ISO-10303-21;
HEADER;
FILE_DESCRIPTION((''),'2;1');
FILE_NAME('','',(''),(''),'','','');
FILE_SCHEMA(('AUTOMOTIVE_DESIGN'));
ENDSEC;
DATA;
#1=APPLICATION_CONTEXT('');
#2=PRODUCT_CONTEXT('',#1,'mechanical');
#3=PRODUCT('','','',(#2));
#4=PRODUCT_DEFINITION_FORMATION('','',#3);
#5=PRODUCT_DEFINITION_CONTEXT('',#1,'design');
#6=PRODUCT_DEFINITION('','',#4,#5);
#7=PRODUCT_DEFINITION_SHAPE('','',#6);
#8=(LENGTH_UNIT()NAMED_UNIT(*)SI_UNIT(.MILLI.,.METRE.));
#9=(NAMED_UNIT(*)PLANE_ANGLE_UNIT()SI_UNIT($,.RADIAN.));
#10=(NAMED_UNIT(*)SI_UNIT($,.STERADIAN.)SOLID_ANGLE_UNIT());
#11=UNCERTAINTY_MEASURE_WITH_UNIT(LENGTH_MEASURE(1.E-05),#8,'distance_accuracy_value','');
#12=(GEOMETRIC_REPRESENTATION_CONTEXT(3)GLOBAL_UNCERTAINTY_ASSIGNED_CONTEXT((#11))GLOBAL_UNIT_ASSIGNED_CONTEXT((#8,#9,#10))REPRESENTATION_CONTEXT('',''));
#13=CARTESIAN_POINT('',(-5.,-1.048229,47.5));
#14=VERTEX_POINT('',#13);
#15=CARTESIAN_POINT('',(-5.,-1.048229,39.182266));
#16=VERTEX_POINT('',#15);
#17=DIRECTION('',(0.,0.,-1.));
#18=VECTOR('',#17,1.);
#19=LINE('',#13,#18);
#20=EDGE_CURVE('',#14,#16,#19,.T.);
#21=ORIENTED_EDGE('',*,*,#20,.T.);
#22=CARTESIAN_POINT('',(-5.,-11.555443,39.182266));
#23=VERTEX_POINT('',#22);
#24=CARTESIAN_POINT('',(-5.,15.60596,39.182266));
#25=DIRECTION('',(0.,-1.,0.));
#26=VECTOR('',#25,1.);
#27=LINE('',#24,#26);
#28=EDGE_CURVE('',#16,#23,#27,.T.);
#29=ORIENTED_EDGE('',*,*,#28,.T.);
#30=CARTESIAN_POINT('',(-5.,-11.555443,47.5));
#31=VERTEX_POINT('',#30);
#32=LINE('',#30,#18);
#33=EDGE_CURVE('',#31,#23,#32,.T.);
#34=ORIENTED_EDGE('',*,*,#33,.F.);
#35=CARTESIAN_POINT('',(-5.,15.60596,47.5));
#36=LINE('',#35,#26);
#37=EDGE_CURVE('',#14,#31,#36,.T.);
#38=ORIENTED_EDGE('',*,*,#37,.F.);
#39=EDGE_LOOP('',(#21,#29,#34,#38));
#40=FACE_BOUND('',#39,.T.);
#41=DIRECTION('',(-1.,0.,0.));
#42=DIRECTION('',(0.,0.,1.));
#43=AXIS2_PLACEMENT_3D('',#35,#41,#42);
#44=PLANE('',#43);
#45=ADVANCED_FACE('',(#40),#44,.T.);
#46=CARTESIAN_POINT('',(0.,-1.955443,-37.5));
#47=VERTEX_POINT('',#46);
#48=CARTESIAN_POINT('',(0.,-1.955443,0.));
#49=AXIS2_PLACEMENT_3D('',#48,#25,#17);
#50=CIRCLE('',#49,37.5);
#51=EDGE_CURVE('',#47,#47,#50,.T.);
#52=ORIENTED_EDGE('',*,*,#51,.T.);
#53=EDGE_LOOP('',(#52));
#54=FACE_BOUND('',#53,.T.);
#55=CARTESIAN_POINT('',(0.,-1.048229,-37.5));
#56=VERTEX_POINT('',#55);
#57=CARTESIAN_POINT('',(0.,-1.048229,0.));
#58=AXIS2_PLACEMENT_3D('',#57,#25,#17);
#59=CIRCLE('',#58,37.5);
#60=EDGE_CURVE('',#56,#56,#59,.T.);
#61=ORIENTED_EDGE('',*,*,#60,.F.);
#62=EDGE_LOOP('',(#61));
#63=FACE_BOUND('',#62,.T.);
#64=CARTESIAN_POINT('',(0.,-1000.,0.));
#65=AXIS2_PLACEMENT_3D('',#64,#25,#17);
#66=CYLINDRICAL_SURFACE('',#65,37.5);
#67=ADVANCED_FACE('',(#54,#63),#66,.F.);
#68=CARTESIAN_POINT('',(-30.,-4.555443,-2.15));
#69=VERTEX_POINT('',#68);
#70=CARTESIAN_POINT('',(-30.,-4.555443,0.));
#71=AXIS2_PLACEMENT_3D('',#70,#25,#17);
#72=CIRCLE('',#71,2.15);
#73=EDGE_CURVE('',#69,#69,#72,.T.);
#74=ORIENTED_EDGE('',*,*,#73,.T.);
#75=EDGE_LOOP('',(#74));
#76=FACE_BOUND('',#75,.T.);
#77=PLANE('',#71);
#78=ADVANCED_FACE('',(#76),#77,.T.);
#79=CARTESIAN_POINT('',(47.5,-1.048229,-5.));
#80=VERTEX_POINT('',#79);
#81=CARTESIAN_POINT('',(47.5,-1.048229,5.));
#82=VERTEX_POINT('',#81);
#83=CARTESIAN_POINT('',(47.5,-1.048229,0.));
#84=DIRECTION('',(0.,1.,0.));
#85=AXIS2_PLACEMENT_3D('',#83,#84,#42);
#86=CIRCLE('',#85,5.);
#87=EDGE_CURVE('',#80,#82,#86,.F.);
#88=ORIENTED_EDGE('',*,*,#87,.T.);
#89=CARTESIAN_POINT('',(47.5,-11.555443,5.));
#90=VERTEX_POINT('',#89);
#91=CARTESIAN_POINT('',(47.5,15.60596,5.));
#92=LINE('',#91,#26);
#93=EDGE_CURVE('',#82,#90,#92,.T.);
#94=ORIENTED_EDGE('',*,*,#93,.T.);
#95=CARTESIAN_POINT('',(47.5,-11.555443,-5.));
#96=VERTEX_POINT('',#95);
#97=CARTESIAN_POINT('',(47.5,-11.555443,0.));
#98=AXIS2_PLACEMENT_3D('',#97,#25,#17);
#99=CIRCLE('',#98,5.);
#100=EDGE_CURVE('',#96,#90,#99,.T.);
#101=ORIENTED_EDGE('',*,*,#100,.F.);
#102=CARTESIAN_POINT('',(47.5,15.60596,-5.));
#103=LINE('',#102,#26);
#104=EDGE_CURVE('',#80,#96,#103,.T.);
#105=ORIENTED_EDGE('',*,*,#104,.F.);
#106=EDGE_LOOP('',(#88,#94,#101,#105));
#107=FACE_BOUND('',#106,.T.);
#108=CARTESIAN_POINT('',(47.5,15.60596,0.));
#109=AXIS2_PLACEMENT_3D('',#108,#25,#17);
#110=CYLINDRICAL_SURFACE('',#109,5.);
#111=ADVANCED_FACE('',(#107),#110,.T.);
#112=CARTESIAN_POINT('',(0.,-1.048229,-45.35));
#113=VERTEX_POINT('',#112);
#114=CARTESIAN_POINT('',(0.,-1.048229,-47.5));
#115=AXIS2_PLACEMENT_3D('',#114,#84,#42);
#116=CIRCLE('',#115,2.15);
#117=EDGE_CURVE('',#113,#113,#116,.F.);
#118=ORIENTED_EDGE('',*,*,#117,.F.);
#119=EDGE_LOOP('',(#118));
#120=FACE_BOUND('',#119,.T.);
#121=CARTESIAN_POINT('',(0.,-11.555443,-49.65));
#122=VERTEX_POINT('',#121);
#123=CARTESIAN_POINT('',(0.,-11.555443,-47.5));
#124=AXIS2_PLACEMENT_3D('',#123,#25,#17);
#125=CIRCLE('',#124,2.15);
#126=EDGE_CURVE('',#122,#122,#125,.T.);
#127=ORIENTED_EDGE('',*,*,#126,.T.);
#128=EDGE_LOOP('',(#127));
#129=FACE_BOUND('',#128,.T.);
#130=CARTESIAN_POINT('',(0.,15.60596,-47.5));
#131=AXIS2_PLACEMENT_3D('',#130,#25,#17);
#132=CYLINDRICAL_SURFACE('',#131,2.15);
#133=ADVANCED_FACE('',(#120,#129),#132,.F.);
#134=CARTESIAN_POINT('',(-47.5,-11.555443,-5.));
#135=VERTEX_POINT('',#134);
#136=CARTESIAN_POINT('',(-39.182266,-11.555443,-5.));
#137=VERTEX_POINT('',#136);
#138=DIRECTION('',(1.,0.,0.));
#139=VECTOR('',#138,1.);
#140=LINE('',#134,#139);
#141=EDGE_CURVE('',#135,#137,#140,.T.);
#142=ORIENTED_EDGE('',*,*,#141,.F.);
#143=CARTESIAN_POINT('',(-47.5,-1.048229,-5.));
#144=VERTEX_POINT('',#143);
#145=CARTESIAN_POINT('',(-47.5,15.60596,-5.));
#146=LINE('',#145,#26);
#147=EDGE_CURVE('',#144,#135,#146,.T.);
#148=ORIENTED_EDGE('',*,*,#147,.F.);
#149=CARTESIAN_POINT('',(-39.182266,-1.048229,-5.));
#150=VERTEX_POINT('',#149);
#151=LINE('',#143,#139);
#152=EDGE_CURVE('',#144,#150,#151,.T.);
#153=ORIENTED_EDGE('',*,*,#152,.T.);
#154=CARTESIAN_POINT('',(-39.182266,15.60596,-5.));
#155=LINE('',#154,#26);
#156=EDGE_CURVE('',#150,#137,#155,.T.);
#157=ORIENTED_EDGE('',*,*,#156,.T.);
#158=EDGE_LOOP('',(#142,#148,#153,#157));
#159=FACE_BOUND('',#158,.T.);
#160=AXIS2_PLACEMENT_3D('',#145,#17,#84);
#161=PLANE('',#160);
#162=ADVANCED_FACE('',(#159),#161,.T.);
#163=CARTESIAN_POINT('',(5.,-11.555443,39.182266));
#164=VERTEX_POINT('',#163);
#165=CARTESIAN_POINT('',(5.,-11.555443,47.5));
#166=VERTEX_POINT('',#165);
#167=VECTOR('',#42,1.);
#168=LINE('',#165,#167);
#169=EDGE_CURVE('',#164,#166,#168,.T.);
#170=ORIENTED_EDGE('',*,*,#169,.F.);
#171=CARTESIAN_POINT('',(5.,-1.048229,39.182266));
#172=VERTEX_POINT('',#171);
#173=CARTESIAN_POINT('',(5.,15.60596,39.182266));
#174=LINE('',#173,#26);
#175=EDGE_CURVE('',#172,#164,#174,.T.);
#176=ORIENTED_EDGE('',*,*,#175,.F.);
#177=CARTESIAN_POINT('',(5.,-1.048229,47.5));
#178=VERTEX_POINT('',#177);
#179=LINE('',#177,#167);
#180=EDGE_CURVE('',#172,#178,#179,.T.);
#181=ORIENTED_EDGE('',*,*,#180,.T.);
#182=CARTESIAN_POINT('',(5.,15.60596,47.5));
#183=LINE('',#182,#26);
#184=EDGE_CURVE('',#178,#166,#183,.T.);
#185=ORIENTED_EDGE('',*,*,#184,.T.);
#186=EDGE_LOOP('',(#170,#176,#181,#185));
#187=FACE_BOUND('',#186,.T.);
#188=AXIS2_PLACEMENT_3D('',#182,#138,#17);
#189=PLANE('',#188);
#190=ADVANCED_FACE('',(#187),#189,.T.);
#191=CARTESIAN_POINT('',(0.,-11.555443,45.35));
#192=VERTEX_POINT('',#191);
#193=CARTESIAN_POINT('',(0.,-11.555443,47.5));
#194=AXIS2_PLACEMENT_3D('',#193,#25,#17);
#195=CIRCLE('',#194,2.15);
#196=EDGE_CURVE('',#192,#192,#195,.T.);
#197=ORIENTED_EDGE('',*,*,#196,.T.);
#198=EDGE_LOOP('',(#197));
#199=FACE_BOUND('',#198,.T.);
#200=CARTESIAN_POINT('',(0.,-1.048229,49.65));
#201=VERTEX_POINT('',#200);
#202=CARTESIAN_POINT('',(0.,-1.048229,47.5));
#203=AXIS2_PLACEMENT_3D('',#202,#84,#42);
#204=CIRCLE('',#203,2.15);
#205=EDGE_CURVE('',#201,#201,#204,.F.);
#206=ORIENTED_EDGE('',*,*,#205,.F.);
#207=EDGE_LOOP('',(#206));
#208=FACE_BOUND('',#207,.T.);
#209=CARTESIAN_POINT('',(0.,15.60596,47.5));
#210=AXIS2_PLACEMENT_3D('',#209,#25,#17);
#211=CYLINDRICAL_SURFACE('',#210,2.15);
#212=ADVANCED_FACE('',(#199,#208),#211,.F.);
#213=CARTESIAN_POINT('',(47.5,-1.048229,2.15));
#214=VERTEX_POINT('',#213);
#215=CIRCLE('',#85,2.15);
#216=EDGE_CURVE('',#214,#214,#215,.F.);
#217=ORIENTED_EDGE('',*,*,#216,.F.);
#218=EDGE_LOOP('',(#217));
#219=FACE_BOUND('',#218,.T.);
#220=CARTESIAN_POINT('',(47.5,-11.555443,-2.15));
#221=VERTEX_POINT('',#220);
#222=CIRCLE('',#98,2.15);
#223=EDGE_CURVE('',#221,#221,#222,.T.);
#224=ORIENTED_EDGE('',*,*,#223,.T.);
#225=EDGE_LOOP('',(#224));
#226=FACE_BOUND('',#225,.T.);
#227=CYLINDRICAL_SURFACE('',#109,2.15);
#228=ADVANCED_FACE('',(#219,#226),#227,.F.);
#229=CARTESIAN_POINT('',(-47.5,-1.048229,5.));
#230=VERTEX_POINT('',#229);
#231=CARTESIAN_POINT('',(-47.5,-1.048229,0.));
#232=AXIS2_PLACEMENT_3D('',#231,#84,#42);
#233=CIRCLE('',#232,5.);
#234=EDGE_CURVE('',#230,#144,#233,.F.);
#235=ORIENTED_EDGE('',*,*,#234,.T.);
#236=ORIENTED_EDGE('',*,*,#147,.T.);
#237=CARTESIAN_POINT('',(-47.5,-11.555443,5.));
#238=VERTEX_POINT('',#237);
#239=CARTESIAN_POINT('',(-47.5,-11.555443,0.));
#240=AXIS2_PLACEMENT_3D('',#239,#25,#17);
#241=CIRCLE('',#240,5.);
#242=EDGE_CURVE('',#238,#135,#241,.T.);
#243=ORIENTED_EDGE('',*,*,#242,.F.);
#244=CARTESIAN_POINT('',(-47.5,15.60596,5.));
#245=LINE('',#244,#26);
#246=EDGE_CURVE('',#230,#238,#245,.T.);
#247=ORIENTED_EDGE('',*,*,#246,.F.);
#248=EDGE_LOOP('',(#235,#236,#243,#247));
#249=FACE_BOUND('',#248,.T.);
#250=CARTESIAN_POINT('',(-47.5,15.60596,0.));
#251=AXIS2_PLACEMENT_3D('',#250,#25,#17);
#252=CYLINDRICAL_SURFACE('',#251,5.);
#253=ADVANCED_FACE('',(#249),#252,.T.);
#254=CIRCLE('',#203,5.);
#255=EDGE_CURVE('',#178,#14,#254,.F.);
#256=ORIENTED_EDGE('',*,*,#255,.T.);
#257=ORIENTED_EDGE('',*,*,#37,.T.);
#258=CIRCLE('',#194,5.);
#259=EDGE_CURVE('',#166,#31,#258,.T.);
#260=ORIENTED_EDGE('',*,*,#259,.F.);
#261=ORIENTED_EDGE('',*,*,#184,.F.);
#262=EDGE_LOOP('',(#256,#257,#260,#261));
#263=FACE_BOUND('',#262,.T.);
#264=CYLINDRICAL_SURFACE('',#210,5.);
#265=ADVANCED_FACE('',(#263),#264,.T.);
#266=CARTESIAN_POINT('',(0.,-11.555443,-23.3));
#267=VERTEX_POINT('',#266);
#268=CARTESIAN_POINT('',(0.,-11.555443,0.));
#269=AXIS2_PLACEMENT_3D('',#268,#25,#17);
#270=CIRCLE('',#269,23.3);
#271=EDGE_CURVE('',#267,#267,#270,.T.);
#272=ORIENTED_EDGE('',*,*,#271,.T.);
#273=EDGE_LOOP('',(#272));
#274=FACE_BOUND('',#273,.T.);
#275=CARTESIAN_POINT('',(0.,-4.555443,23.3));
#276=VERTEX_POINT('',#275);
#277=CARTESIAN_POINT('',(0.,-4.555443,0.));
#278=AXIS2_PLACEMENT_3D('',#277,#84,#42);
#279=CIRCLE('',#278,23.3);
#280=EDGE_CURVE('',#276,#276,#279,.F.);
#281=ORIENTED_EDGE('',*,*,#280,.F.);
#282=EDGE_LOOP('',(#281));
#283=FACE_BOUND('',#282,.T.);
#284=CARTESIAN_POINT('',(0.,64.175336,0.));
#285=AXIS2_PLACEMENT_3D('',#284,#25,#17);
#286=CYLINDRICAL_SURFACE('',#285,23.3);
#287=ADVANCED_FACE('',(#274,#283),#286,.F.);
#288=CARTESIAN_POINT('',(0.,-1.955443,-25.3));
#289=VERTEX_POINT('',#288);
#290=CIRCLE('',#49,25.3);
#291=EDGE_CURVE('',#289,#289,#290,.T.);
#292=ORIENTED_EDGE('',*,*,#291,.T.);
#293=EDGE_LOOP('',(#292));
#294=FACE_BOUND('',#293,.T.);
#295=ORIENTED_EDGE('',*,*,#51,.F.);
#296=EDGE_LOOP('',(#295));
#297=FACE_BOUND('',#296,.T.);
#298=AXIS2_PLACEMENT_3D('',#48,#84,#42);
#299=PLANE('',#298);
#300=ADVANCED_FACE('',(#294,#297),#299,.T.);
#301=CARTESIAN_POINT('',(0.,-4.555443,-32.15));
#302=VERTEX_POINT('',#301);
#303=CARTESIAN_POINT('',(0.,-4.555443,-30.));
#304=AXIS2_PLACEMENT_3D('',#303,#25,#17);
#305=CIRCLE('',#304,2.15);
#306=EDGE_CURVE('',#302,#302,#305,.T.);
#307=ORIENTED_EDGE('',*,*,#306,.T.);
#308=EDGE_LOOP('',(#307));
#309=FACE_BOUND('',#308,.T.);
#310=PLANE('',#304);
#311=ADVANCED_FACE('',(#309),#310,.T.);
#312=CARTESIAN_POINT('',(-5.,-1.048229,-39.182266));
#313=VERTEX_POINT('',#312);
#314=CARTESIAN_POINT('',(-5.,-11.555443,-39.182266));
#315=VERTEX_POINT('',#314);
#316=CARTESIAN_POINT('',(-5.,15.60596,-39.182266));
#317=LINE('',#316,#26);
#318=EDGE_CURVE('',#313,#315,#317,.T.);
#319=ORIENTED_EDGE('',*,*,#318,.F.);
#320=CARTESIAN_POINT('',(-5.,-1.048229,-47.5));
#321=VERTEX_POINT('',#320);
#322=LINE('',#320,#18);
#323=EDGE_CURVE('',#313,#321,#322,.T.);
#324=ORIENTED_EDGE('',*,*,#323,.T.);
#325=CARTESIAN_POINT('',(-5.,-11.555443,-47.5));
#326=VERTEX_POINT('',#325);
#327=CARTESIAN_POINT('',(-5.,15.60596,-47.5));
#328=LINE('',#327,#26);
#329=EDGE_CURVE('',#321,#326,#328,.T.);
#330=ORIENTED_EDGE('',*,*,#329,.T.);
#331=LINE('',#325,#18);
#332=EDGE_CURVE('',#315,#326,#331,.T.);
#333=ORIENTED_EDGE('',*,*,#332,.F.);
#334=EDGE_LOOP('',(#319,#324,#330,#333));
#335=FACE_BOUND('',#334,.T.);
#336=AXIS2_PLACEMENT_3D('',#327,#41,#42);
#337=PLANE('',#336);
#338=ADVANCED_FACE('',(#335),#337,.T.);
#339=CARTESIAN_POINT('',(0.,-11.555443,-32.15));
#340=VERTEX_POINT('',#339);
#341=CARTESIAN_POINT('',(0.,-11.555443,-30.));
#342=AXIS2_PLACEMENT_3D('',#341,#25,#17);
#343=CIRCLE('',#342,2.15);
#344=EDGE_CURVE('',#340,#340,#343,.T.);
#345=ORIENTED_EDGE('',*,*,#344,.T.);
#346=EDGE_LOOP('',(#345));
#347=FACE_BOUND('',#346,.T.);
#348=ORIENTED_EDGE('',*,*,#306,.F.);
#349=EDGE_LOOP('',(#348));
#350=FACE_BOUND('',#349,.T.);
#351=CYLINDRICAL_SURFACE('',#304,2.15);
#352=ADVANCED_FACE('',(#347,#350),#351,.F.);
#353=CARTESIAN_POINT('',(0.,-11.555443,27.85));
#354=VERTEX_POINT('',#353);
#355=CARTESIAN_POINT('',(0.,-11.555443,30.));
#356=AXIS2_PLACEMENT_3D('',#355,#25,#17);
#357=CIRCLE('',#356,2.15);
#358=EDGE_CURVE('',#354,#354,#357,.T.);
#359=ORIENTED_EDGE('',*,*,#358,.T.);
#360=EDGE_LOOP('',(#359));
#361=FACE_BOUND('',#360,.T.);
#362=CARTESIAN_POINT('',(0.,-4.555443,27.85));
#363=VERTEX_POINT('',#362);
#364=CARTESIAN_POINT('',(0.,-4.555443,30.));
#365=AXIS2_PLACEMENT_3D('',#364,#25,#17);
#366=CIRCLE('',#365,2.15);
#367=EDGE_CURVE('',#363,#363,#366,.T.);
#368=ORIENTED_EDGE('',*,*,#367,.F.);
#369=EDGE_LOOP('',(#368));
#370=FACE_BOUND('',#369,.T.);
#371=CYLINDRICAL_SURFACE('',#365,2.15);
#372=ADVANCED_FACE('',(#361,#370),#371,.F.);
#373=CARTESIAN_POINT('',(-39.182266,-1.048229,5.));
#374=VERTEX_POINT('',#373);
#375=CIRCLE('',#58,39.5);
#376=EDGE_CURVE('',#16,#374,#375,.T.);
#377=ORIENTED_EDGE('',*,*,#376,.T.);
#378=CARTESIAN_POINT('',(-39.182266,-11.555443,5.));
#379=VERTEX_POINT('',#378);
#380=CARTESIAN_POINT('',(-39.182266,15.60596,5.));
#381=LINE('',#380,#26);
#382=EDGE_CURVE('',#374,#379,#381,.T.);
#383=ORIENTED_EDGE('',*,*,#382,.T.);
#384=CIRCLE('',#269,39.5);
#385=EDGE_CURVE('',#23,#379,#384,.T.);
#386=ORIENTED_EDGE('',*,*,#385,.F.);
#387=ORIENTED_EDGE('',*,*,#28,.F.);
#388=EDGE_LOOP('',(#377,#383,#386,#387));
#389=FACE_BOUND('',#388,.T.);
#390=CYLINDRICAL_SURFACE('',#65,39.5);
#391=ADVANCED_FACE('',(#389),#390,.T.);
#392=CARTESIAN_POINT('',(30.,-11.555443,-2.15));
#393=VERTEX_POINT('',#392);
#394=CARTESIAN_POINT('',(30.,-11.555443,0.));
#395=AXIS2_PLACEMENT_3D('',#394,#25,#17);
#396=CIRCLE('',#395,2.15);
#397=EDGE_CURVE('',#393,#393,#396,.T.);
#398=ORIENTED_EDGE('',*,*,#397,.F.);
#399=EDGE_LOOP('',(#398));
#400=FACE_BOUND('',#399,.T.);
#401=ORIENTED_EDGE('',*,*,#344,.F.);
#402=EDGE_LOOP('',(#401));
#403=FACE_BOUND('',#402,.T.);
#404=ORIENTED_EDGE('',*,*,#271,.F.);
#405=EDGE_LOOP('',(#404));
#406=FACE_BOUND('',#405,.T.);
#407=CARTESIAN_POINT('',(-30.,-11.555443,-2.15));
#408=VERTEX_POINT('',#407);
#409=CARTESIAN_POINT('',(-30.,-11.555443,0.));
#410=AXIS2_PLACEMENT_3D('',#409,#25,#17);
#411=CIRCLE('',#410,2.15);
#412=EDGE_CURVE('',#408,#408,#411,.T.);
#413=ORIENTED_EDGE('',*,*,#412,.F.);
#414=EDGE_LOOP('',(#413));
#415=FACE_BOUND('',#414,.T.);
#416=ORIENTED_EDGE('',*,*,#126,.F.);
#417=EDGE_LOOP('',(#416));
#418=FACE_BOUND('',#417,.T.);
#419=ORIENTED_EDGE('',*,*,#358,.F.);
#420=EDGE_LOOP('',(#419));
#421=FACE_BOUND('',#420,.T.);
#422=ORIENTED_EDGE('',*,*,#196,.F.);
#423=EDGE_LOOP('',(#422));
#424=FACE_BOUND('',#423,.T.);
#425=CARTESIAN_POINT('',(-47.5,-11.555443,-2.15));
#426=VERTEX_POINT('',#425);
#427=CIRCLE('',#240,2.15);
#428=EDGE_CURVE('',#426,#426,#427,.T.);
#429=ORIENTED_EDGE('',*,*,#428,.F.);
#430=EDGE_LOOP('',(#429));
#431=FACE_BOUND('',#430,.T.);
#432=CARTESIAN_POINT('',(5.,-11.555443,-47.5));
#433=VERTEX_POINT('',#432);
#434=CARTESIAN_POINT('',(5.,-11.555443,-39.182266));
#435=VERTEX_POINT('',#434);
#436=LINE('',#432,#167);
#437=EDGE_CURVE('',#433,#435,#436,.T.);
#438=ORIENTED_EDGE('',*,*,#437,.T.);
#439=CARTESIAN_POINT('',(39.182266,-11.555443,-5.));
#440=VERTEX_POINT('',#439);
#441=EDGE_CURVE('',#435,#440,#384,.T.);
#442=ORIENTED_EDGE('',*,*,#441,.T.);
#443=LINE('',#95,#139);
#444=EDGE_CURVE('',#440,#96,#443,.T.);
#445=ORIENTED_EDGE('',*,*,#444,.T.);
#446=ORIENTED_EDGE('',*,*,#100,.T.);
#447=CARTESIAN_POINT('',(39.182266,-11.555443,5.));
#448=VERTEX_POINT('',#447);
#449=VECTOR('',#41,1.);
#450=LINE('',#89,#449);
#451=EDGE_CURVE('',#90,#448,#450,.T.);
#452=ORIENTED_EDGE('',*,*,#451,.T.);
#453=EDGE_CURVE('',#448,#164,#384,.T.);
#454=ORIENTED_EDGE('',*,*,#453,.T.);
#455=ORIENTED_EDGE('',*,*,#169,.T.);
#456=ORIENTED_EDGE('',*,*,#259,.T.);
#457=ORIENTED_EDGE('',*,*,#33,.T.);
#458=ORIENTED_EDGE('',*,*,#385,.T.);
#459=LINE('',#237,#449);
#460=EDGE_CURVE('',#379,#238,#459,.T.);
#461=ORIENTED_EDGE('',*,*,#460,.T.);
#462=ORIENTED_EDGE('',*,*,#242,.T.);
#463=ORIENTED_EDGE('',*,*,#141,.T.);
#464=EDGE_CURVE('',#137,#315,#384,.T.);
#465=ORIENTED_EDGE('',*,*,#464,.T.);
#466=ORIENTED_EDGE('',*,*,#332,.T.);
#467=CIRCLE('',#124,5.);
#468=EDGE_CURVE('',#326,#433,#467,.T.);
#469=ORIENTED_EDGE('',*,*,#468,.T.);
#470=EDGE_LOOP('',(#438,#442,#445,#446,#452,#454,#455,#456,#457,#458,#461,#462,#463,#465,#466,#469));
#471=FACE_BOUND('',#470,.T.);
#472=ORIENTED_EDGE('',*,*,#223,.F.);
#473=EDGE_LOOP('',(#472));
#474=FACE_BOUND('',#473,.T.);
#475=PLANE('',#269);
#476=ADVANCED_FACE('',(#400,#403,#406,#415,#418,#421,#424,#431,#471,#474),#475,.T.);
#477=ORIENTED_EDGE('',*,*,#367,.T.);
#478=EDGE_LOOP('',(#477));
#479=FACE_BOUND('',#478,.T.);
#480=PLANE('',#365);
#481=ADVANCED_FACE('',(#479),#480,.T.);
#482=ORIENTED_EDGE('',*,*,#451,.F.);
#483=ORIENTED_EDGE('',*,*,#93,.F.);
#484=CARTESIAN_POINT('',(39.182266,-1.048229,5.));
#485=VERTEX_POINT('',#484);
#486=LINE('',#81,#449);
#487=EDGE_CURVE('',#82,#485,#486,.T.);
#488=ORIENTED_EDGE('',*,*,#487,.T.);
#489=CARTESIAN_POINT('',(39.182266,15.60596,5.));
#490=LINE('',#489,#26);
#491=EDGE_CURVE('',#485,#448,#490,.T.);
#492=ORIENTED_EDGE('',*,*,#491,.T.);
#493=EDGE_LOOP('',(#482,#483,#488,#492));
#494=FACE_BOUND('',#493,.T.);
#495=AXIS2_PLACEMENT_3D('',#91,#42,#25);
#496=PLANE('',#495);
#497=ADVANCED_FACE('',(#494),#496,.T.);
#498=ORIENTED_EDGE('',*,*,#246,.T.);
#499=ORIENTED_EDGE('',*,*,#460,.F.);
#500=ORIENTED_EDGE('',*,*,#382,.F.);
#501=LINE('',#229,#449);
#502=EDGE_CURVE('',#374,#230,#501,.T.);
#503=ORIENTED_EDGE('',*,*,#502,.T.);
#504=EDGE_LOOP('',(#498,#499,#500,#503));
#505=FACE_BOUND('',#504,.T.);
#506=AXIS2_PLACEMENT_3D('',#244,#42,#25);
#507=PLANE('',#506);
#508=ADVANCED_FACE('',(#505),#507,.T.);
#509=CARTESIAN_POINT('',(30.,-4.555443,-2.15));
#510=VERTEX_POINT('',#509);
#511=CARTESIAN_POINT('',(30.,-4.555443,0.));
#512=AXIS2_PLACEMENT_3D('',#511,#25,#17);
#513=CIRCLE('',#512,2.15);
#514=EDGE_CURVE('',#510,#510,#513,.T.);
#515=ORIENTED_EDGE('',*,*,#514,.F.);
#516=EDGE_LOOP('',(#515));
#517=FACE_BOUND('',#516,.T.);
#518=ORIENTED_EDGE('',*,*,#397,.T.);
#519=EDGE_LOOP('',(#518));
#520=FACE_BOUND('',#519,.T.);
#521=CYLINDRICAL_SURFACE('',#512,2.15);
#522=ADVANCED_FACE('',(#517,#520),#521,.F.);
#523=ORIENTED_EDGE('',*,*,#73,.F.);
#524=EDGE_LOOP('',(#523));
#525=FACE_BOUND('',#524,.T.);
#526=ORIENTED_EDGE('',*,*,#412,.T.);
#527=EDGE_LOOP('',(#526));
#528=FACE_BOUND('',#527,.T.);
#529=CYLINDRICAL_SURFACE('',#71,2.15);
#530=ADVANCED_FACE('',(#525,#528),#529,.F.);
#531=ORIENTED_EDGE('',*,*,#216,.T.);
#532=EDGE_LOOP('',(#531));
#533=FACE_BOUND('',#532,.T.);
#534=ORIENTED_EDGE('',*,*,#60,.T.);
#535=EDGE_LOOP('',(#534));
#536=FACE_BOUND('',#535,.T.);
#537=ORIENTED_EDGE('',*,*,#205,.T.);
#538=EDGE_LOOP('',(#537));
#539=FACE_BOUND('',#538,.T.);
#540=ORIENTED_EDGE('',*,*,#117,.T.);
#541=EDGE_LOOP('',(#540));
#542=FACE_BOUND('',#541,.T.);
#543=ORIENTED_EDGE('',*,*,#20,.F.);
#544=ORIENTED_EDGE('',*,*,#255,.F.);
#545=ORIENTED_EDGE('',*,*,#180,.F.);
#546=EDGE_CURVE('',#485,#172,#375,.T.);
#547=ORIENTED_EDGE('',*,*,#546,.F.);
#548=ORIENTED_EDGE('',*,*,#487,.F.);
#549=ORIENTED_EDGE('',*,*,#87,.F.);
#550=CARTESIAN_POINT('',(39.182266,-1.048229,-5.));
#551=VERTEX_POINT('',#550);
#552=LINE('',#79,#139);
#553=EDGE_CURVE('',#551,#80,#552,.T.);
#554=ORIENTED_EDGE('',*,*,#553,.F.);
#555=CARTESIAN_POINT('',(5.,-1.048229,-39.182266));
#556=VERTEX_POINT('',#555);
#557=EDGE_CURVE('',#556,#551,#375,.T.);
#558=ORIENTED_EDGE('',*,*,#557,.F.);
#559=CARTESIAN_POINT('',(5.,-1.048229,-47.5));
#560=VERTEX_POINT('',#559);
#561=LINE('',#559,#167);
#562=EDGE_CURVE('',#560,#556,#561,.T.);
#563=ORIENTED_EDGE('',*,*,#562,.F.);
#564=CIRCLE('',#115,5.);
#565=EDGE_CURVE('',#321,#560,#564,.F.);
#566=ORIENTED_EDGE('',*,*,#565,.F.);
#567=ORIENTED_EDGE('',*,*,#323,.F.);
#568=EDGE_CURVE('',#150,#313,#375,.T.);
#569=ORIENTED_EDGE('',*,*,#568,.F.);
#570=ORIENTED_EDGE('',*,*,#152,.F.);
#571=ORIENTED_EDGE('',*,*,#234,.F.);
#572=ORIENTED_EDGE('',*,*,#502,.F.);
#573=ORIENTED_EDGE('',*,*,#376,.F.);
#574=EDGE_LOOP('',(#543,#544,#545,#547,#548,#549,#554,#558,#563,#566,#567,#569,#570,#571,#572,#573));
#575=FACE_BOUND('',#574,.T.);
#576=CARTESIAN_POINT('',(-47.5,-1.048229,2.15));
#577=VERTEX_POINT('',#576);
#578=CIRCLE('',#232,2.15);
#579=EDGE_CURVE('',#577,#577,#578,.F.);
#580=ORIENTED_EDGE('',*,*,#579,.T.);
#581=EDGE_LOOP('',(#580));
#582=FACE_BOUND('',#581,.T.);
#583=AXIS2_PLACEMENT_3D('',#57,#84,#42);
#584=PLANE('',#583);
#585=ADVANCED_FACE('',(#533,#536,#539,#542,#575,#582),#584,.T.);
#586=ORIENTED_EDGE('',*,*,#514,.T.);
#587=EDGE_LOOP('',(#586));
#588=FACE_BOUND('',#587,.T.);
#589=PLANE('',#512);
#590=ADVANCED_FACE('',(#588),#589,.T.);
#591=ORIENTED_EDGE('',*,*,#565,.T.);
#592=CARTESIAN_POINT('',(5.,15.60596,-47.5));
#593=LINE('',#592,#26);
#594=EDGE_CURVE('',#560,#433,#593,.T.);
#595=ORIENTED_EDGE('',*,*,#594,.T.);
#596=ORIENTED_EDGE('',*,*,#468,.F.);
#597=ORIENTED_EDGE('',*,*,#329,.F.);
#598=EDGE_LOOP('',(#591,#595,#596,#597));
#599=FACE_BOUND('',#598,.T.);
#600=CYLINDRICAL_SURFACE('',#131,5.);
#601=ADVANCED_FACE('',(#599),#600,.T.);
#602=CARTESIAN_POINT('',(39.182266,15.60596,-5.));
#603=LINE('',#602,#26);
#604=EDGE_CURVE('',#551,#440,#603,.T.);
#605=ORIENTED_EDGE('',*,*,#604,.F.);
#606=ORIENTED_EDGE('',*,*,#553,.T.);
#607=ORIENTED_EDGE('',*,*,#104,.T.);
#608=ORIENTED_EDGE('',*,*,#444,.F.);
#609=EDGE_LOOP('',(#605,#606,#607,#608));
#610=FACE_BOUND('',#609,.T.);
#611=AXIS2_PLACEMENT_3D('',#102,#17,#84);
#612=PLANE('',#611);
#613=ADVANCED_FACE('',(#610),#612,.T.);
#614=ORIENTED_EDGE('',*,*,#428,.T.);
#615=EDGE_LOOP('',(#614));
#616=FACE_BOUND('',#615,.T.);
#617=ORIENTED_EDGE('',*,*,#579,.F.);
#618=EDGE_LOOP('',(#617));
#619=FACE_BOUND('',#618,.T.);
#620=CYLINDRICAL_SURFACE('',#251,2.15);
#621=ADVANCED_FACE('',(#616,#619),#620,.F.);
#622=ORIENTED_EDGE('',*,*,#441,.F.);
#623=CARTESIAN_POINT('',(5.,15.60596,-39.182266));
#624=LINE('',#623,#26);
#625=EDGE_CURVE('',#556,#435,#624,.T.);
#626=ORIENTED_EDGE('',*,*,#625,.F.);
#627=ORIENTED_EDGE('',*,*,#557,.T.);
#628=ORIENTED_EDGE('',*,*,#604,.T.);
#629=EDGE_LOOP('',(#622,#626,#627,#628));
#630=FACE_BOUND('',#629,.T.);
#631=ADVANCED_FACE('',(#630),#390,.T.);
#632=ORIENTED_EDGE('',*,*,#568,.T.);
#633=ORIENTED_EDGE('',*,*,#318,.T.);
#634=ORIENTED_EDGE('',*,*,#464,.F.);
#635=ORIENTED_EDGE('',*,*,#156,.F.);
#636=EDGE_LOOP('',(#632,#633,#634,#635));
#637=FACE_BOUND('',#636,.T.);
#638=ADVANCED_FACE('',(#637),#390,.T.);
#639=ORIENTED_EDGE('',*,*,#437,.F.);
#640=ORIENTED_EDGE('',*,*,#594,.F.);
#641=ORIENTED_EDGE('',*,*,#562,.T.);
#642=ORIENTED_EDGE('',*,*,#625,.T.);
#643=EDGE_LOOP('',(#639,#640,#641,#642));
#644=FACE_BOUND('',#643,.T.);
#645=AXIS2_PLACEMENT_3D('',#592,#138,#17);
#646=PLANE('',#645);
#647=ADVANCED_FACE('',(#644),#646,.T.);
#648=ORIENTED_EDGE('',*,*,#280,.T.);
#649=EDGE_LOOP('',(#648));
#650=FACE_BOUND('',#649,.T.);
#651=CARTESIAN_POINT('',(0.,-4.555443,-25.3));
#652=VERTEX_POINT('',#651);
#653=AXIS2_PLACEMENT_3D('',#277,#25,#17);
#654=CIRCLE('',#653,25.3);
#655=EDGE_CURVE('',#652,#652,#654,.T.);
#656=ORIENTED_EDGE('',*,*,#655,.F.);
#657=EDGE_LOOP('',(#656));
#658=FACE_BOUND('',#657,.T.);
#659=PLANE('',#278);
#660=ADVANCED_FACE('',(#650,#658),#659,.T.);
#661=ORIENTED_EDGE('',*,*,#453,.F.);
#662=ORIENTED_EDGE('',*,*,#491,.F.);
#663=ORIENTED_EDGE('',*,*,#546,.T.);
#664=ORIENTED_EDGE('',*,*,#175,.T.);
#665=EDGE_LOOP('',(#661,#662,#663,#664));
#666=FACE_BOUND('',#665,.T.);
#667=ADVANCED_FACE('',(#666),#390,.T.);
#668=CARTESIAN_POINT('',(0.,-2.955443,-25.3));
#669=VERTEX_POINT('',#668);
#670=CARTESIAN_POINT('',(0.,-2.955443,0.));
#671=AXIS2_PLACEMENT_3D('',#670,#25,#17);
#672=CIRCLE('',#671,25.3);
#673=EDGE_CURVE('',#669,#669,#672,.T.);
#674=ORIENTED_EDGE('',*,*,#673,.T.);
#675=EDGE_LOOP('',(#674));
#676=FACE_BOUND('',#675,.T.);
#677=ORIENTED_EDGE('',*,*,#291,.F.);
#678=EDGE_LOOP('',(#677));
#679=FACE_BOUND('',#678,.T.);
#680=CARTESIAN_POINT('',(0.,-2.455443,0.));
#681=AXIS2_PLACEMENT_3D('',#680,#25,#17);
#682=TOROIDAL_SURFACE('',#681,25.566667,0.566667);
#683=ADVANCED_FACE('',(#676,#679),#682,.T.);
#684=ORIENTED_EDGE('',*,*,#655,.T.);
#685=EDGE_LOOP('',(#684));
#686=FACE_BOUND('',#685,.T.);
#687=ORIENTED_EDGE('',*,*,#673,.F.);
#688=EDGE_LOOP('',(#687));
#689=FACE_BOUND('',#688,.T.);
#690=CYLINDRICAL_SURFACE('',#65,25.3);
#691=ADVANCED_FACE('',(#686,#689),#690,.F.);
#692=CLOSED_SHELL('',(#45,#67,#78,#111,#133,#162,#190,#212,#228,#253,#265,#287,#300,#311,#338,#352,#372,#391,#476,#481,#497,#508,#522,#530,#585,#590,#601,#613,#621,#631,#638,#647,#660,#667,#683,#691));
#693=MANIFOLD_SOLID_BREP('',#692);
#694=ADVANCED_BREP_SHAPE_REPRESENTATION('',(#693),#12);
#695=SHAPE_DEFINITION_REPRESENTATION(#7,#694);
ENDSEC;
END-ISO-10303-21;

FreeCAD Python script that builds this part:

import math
import FreeCAD as App
import Part
import Sketcher
Q = App.Units.Quantity

doc = App.newDocument("Part")
body = doc.addObject("PartDesign::Body", "Body")

sketch1 = body.newObject("Sketcher::SketchObject", "Sketch")
sketch1.AttachmentSupport = (doc.getObject("YZ_Plane"), [""])
sketch1.MapMode = "FlatFace"
sketch1.addGeometry(Part.LineSegment(App.Vector(-2, 37.5, 0), App.Vector(-1, 37.5, 0)), False)
sketch1.addGeometry(Part.LineSegment(App.Vector(-1, 37.5, 0), App.Vector(-1, 39.5, 0)), False)
sketch1.addGeometry(Part.LineSegment(App.Vector(-1, 39.5, 0), App.Vector(-11.6, 39.5, 0)), False)
sketch1.addGeometry(Part.LineSegment(App.Vector(-11.6, 39.5, 0), App.Vector(-11.6, 8, 0)), False)
sketch1.addGeometry(Part.LineSegment(App.Vector(-11.6, 8, 0), App.Vector(-4.6, 8, 0)), False)
sketch1.addGeometry(Part.LineSegment(App.Vector(-4.6, 8, 0), App.Vector(-4.6, 25.3, 0)), False)
sketch1.addGeometry(Part.LineSegment(App.Vector(-4.6, 25.3, 0), App.Vector(-3, 25.3, 0)), False)
sketch1.addGeometry(Part.ArcOfCircle(Part.Circle(App.Vector(-2.5, 25.6, 0), App.Vector(0, 0, 1), 0.6), math.radians(-152), math.radians(-28)), False)
sketch1.addGeometry(Part.LineSegment(App.Vector(-2, 25.3, 0), App.Vector(-2, 37.5, 0)), False)
sketch1.addConstraint(Sketcher.Constraint("Coincident", 0, 2, 1, 1))
sketch1.addConstraint(Sketcher.Constraint("Coincident", 1, 2, 2, 1))
sketch1.addConstraint(Sketcher.Constraint("Coincident", 2, 2, 3, 1))
sketch1.addConstraint(Sketcher.Constraint("Coincident", 3, 2, 4, 1))
sketch1.addConstraint(Sketcher.Constraint("Coincident", 4, 2, 5, 1))
sketch1.addConstraint(Sketcher.Constraint("Coincident", 5, 2, 6, 1))
sketch1.addConstraint(Sketcher.Constraint("Coincident", 6, 2, 7, 1))
sketch1.addConstraint(Sketcher.Constraint("Coincident", 7, 2, 8, 1))
sketch1.addConstraint(Sketcher.Constraint("Coincident", 8, 2, 0, 1))
sketch1.addConstraint(Sketcher.Constraint("Horizontal", 0))
sketch1.addConstraint(Sketcher.Constraint("Vertical", 1))
sketch1.addConstraint(Sketcher.Constraint("Horizontal", 2))
sketch1.addConstraint(Sketcher.Constraint("Vertical", 3))
sketch1.addConstraint(Sketcher.Constraint("Horizontal", 4))
sketch1.addConstraint(Sketcher.Constraint("Vertical", 5))
sketch1.addConstraint(Sketcher.Constraint("Horizontal", 6))
sketch1.addConstraint(Sketcher.Constraint("Vertical", 8))
sketch1.addConstraint(Sketcher.Constraint("Horizontal", 6, 2, 7, 2))
sketch1.addConstraint(Sketcher.Constraint("DistanceX", 4, 1, 4, 2, Q("7 mm")))
sketch1.addConstraint(Sketcher.Constraint("DistanceY", 1, 1, 1, 2, Q("2 mm")))
sketch1.addConstraint(Sketcher.Constraint("DistanceX", 6, 1, 6, 2, Q("1.6 mm")))
sketch1.addConstraint(Sketcher.Constraint("DistanceY", 3, 2, 3, 1, Q("31.5 mm")))
sketch1.addConstraint(Sketcher.Constraint("DistanceY", 5, 1, 5, 2, Q("17.3 mm")))
sketch1.addConstraint(Sketcher.Constraint("DistanceY", -1, 1, 3, 2, Q("8 mm")))
sketch1.addConstraint(Sketcher.Constraint("DistanceX", 6, 2, 7, 2, Q("1 mm")))
sketch1.addConstraint(Sketcher.Constraint("Radius", 7, Q("0.566667 mm")))
sketch1.addConstraint(Sketcher.Constraint("DistanceX", 0, 1, 0, 2, Q("0.907214 mm")))
sketch1.addConstraint(Sketcher.Constraint("DistanceX", 0, 2, -1, 1, Q("1.048229 mm")))
revolution = body.newObject("PartDesign::Revolution", "Revolution")
revolution.Profile = sketch1
revolution.ReferenceAxis = (sketch1, ["H_Axis"])
revolution.Angle = 360

sketch2 = body.newObject("Sketcher::SketchObject", "Sketch001")
sketch2.AttachmentSupport = (doc.getObject("XZ_Plane"), [""])
sketch2.MapMode = "FlatFace"
sketch2.AttachmentOffset = App.Placement(App.Vector(0, 0, 11.555443), App.Rotation())
sketch2.addGeometry(Part.LineSegment(App.Vector(-5, 47.5, 0), App.Vector(-5, 39.2, 0)), False)
sketch2.addGeometry(Part.LineSegment(App.Vector(-5, 39.2, 0), App.Vector(5, 39.2, 0)), False)
sketch2.addGeometry(Part.LineSegment(App.Vector(5, 39.2, 0), App.Vector(5, 47.5, 0)), False)
sketch2.addGeometry(Part.ArcOfCircle(Part.Circle(App.Vector(0, 47.5, 0), App.Vector(0, 0, 1), 5), math.radians(0), math.radians(180)), False)
sketch2.addGeometry(Part.Circle(App.Vector(0, 47.5, 0), App.Vector(0, 0, 1), 2.1), False)
sketch2.addGeometry(Part.LineSegment(App.Vector(39.2, -5, 0), App.Vector(47.5, -5, 0)), False)
sketch2.addGeometry(Part.ArcOfCircle(Part.Circle(App.Vector(47.5, 0, 0), App.Vector(0, 0, 1), 5), math.radians(-90), math.radians(90)), False)
sketch2.addGeometry(Part.LineSegment(App.Vector(47.5, 5, 0), App.Vector(39.2, 5, 0)), False)
sketch2.addGeometry(Part.LineSegment(App.Vector(39.2, 5, 0), App.Vector(39.2, -5, 0)), False)
sketch2.addGeometry(Part.Circle(App.Vector(47.5, 0, 0), App.Vector(0, 0, 1), 2.1), False)
sketch2.addGeometry(Part.LineSegment(App.Vector(-5, -39.2, 0), App.Vector(-5, -47.5, 0)), False)
sketch2.addGeometry(Part.ArcOfCircle(Part.Circle(App.Vector(0, -47.5, 0), App.Vector(0, 0, 1), 5), math.radians(180), math.radians(360)), False)
sketch2.addGeometry(Part.LineSegment(App.Vector(5, -47.5, 0), App.Vector(5, -39.2, 0)), False)
sketch2.addGeometry(Part.LineSegment(App.Vector(5, -39.2, 0), App.Vector(-5, -39.2, 0)), False)
sketch2.addGeometry(Part.Circle(App.Vector(0, -47.5, 0), App.Vector(0, 0, 1), 2.1), False)
sketch2.addGeometry(Part.LineSegment(App.Vector(-39.2, 5, 0), App.Vector(-47.5, 5, 0)), False)
sketch2.addGeometry(Part.ArcOfCircle(Part.Circle(App.Vector(-47.5, 0, 0), App.Vector(0, 0, 1), 5), math.radians(90), math.radians(270)), False)
sketch2.addGeometry(Part.LineSegment(App.Vector(-47.5, -5, 0), App.Vector(-39.2, -5, 0)), False)
sketch2.addGeometry(Part.LineSegment(App.Vector(-39.2, -5, 0), App.Vector(-39.2, 5, 0)), False)
sketch2.addGeometry(Part.Circle(App.Vector(-47.5, 0, 0), App.Vector(0, 0, 1), 2.1), False)
sketch2.addConstraint(Sketcher.Constraint("Coincident", 0, 2, 1, 1))
sketch2.addConstraint(Sketcher.Constraint("Coincident", 1, 2, 2, 1))
sketch2.addConstraint(Sketcher.Constraint("Tangent", 2, 2, 3, 1))
sketch2.addConstraint(Sketcher.Constraint("Tangent", 3, 2, 0, 1))
sketch2.addConstraint(Sketcher.Constraint("Tangent", 5, 2, 6, 1))
sketch2.addConstraint(Sketcher.Constraint("Tangent", 6, 2, 7, 1))
sketch2.addConstraint(Sketcher.Constraint("Coincident", 7, 2, 8, 1))
sketch2.addConstraint(Sketcher.Constraint("Coincident", 8, 2, 5, 1))
sketch2.addConstraint(Sketcher.Constraint("Tangent", 10, 2, 11, 1))
sketch2.addConstraint(Sketcher.Constraint("Tangent", 11, 2, 12, 1))
sketch2.addConstraint(Sketcher.Constraint("Coincident", 12, 2, 13, 1))
sketch2.addConstraint(Sketcher.Constraint("Coincident", 13, 2, 10, 1))
sketch2.addConstraint(Sketcher.Constraint("Tangent", 15, 2, 16, 1))
sketch2.addConstraint(Sketcher.Constraint("Tangent", 16, 2, 17, 1))
sketch2.addConstraint(Sketcher.Constraint("Coincident", 17, 2, 18, 1))
sketch2.addConstraint(Sketcher.Constraint("Coincident", 18, 2, 15, 1))
sketch2.addConstraint(Sketcher.Constraint("Vertical", 0))
sketch2.addConstraint(Sketcher.Constraint("Horizontal", 1))
sketch2.addConstraint(Sketcher.Constraint("Vertical", 2))
sketch2.addConstraint(Sketcher.Constraint("Horizontal", 5))
sketch2.addConstraint(Sketcher.Constraint("Horizontal", 7))
sketch2.addConstraint(Sketcher.Constraint("Vertical", 8))
sketch2.addConstraint(Sketcher.Constraint("Vertical", 10))
sketch2.addConstraint(Sketcher.Constraint("Vertical", 12))
sketch2.addConstraint(Sketcher.Constraint("Horizontal", 13))
sketch2.addConstraint(Sketcher.Constraint("Horizontal", 15))
sketch2.addConstraint(Sketcher.Constraint("Horizontal", 17))
sketch2.addConstraint(Sketcher.Constraint("Vertical", 18))
sketch2.addConstraint(Sketcher.Constraint("Coincident", 4, 3, 3, 3))
sketch2.addConstraint(Sketcher.Constraint("Coincident", 9, 3, 6, 3))
sketch2.addConstraint(Sketcher.Constraint("Coincident", 14, 3, 11, 3))
sketch2.addConstraint(Sketcher.Constraint("Coincident", 19, 3, 16, 3))
sketch2.addConstraint(Sketcher.Constraint("Equal", 3, 6))
sketch2.addConstraint(Sketcher.Constraint("Equal", 4, 9))
sketch2.addConstraint(Sketcher.Constraint("Equal", 6, 11))
sketch2.addConstraint(Sketcher.Constraint("Equal", 9, 14))
sketch2.addConstraint(Sketcher.Constraint("Equal", 11, 16))
sketch2.addConstraint(Sketcher.Constraint("Equal", 14, 19))
sketch2.addConstraint(Sketcher.Constraint("Symmetric", 3, 3, 11, 3, -1, 1))
sketch2.addConstraint(Sketcher.Constraint("Symmetric", 6, 3, 16, 3, -1, 1))
sketch2.addConstraint(Sketcher.Constraint("Symmetric", 8, 2, 17, 2, -2))
sketch2.addConstraint(Sketcher.Constraint("Symmetric", 1, 2, 12, 2, -1))
sketch2.addConstraint(Sketcher.Constraint("Equal", 17, 0))
sketch2.addConstraint(Sketcher.Constraint("Radius", 3, Q("5 mm")))
sketch2.addConstraint(Sketcher.Constraint("Diameter", 4, Q("4.3 mm")))
sketch2.addConstraint(Sketcher.Constraint("DistanceY", 11, 3, 3, 3, Q("95 mm")))
sketch2.addConstraint(Sketcher.Constraint("DistanceX", 16, 3, 6, 3, Q("95 mm")))
sketch2.addConstraint(Sketcher.Constraint("DistanceX", 5, 1, 5, 2, Q("8.317734 mm")))
pad1 = body.newObject("PartDesign::Pad", "Pad")
pad1.Profile = sketch2
pad1.Length = 10.507214
pad1.Reversed = True

sketch3 = body.newObject("Sketcher::SketchObject", "Sketch002")
sketch3.AttachmentSupport = (doc.getObject("XZ_Plane"), [""])
sketch3.MapMode = "FlatFace"
sketch3.AttachmentOffset = App.Placement(App.Vector(0, 0, 4.555443), App.Rotation())
sketch3.addGeometry(Part.LineSegment(App.Vector(21.9, 2, 0), App.Vector(12.4, 2, 0)), False)
sketch3.addGeometry(Part.ArcOfCircle(Part.Circle(App.Vector(12.4, 4, 0), App.Vector(0, 0, 1), 2), math.radians(-162), math.radians(-90)), False)
sketch3.addGeometry(Part.ArcOfCircle(Part.Circle(App.Vector(0, 0, 0), App.Vector(0, 0, 1), 11), math.radians(18), math.radians(72)), False)
sketch3.addGeometry(Part.ArcOfCircle(Part.Circle(App.Vector(4, 12.4, 0), App.Vector(0, 0, 1), 2), math.radians(-180), math.radians(-108)), False)
sketch3.addGeometry(Part.LineSegment(App.Vector(2, 12.4, 0), App.Vector(2, 21.9, 0)), False)
sketch3.addGeometry(Part.ArcOfCircle(Part.Circle(App.Vector(4, 21.9, 0), App.Vector(0, 0, 1), 2), math.radians(80), math.radians(180)), False)
sketch3.addGeometry(Part.ArcOfCircle(Part.Circle(App.Vector(0, 0, 0), App.Vector(0, 0, 1), 24.3), math.radians(10), math.radians(80)), False)
sketch3.addGeometry(Part.ArcOfCircle(Part.Circle(App.Vector(21.9, 4, 0), App.Vector(0, 0, 1), 2), math.radians(-90), math.radians(10)), False)
sketch3.addGeometry(Part.LineSegment(App.Vector(-2, 21.9, 0), App.Vector(-2, 12.4, 0)), False)
sketch3.addGeometry(Part.ArcOfCircle(Part.Circle(App.Vector(-4, 12.4, 0), App.Vector(0, 0, 1), 2), math.radians(-72), math.radians(0)), False)
sketch3.addGeometry(Part.ArcOfCircle(Part.Circle(App.Vector(0, 0, 0), App.Vector(0, 0, 1), 11), math.radians(108), math.radians(162)), False)
sketch3.addGeometry(Part.ArcOfCircle(Part.Circle(App.Vector(-12.4, 4, 0), App.Vector(0, 0, 1), 2), math.radians(-90), math.radians(-18)), False)
sketch3.addGeometry(Part.LineSegment(App.Vector(-12.4, 2, 0), App.Vector(-21.9, 2, 0)), False)
sketch3.addGeometry(Part.ArcOfCircle(Part.Circle(App.Vector(-21.9, 4, 0), App.Vector(0, 0, 1), 2), math.radians(170), math.radians(270)), False)
sketch3.addGeometry(Part.ArcOfCircle(Part.Circle(App.Vector(0, 0, 0), App.Vector(0, 0, 1), 24.3), math.radians(100), math.radians(170)), False)
sketch3.addGeometry(Part.ArcOfCircle(Part.Circle(App.Vector(-4, 21.9, 0), App.Vector(0, 0, 1), 2), math.radians(0), math.radians(100)), False)
sketch3.addGeometry(Part.LineSegment(App.Vector(-21.9, -2, 0), App.Vector(-12.4, -2, 0)), False)
sketch3.addGeometry(Part.ArcOfCircle(Part.Circle(App.Vector(-12.4, -4, 0), App.Vector(0, 0, 1), 2), math.radians(18), math.radians(90)), False)
sketch3.addGeometry(Part.ArcOfCircle(Part.Circle(App.Vector(0, 0, 0), App.Vector(0, 0, 1), 11), math.radians(-162), math.radians(-108)), False)
sketch3.addGeometry(Part.ArcOfCircle(Part.Circle(App.Vector(-4, -12.4, 0), App.Vector(0, 0, 1), 2), math.radians(0), math.radians(72)), False)
sketch3.addGeometry(Part.LineSegment(App.Vector(-2, -12.4, 0), App.Vector(-2, -21.9, 0)), False)
sketch3.addGeometry(Part.ArcOfCircle(Part.Circle(App.Vector(-4, -21.9, 0), App.Vector(0, 0, 1), 2), math.radians(-100), math.radians(0)), False)
sketch3.addGeometry(Part.ArcOfCircle(Part.Circle(App.Vector(0, 0, 0), App.Vector(0, 0, 1), 24.3), math.radians(-170), math.radians(-100)), False)
sketch3.addGeometry(Part.ArcOfCircle(Part.Circle(App.Vector(-21.9, -4, 0), App.Vector(0, 0, 1), 2), math.radians(90), math.radians(190)), False)
sketch3.addGeometry(Part.LineSegment(App.Vector(2, -21.9, 0), App.Vector(2, -12.4, 0)), False)
sketch3.addGeometry(Part.ArcOfCircle(Part.Circle(App.Vector(4, -12.4, 0), App.Vector(0, 0, 1), 2), math.radians(108), math.radians(180)), False)
sketch3.addGeometry(Part.ArcOfCircle(Part.Circle(App.Vector(0, 0, 0), App.Vector(0, 0, 1), 11), math.radians(-72), math.radians(-18)), False)
sketch3.addGeometry(Part.ArcOfCircle(Part.Circle(App.Vector(12.4, -4, 0), App.Vector(0, 0, 1), 2), math.radians(90), math.radians(162)), False)
sketch3.addGeometry(Part.LineSegment(App.Vector(12.4, -2, 0), App.Vector(21.9, -2, 0)), False)
sketch3.addGeometry(Part.ArcOfCircle(Part.Circle(App.Vector(21.9, -4, 0), App.Vector(0, 0, 1), 2), math.radians(-10), math.radians(90)), False)
sketch3.addGeometry(Part.ArcOfCircle(Part.Circle(App.Vector(0, 0, 0), App.Vector(0, 0, 1), 24.3), math.radians(-80), math.radians(-10)), False)
sketch3.addGeometry(Part.ArcOfCircle(Part.Circle(App.Vector(4, -21.9, 0), App.Vector(0, 0, 1), 2), math.radians(-180), math.radians(-80)), False)
sketch3.addConstraint(Sketcher.Constraint("Tangent", 0, 2, 1, 2))
sketch3.addConstraint(Sketcher.Constraint("Tangent", 1, 1, 2, 1))
sketch3.addConstraint(Sketcher.Constraint("Tangent", 2, 2, 3, 2))
sketch3.addConstraint(Sketcher.Constraint("Tangent", 3, 1, 4, 1))
sketch3.addConstraint(Sketcher.Constraint("Tangent", 4, 2, 5, 2))
sketch3.addConstraint(Sketcher.Constraint("Tangent", 5, 1, 6, 2))
sketch3.addConstraint(Sketcher.Constraint("Tangent", 6, 1, 7, 2))
sketch3.addConstraint(Sketcher.Constraint("Tangent", 7, 1, 0, 1))
sketch3.addConstraint(Sketcher.Constraint("Tangent", 8, 2, 9, 2))
sketch3.addConstraint(Sketcher.Constraint("Tangent", 9, 1, 10, 1))
sketch3.addConstraint(Sketcher.Constraint("Tangent", 10, 2, 11, 2))
sketch3.addConstraint(Sketcher.Constraint("Tangent", 11, 1, 12, 1))
sketch3.addConstraint(Sketcher.Constraint("Tangent", 12, 2, 13, 2))
sketch3.addConstraint(Sketcher.Constraint("Tangent", 13, 1, 14, 2))
sketch3.addConstraint(Sketcher.Constraint("Tangent", 14, 1, 15, 2))
sketch3.addConstraint(Sketcher.Constraint("Tangent", 15, 1, 8, 1))
sketch3.addConstraint(Sketcher.Constraint("Tangent", 16, 2, 17, 2))
sketch3.addConstraint(Sketcher.Constraint("Tangent", 17, 1, 18, 1))
sketch3.addConstraint(Sketcher.Constraint("Tangent", 18, 2, 19, 2))
sketch3.addConstraint(Sketcher.Constraint("Tangent", 19, 1, 20, 1))
sketch3.addConstraint(Sketcher.Constraint("Tangent", 20, 2, 21, 2))
sketch3.addConstraint(Sketcher.Constraint("Tangent", 21, 1, 22, 2))
sketch3.addConstraint(Sketcher.Constraint("Tangent", 22, 1, 23, 2))
sketch3.addConstraint(Sketcher.Constraint("Tangent", 23, 1, 16, 1))
sketch3.addConstraint(Sketcher.Constraint("Tangent", 24, 2, 25, 2))
sketch3.addConstraint(Sketcher.Constraint("Tangent", 25, 1, 26, 1))
sketch3.addConstraint(Sketcher.Constraint("Tangent", 26, 2, 27, 2))
sketch3.addConstraint(Sketcher.Constraint("Tangent", 27, 1, 28, 1))
sketch3.addConstraint(Sketcher.Constraint("Tangent", 28, 2, 29, 2))
sketch3.addConstraint(Sketcher.Constraint("Tangent", 29, 1, 30, 2))
sketch3.addConstraint(Sketcher.Constraint("Tangent", 30, 1, 31, 2))
sketch3.addConstraint(Sketcher.Constraint("Tangent", 31, 1, 24, 1))
sketch3.addConstraint(Sketcher.Constraint("Horizontal", 0))
sketch3.addConstraint(Sketcher.Constraint("Vertical", 4))
sketch3.addConstraint(Sketcher.Constraint("Vertical", 8))
sketch3.addConstraint(Sketcher.Constraint("Horizontal", 12))
sketch3.addConstraint(Sketcher.Constraint("Horizontal", 16))
sketch3.addConstraint(Sketcher.Constraint("Vertical", 20))
sketch3.addConstraint(Sketcher.Constraint("Vertical", 24))
sketch3.addConstraint(Sketcher.Constraint("Horizontal", 28))
sketch3.addConstraint(Sketcher.Constraint("Coincident", 2, 3, -1, 1))
sketch3.addConstraint(Sketcher.Constraint("Coincident", 6, 3, -1, 1))
sketch3.addConstraint(Sketcher.Constraint("Coincident", 10, 3, -1, 1))
sketch3.addConstraint(Sketcher.Constraint("Coincident", 14, 3, -1, 1))
sketch3.addConstraint(Sketcher.Constraint("Coincident", 18, 3, -1, 1))
sketch3.addConstraint(Sketcher.Constraint("Coincident", 22, 3, -1, 1))
sketch3.addConstraint(Sketcher.Constraint("Coincident", 26, 3, -1, 1))
sketch3.addConstraint(Sketcher.Constraint("Coincident", 30, 3, -1, 1))
sketch3.addConstraint(Sketcher.Constraint("Equal", 1, 3))
sketch3.addConstraint(Sketcher.Constraint("Equal", 3, 5))
sketch3.addConstraint(Sketcher.Constraint("Equal", 5, 7))
sketch3.addConstraint(Sketcher.Constraint("Equal", 7, 9))
sketch3.addConstraint(Sketcher.Constraint("Equal", 2, 10))
sketch3.addConstraint(Sketcher.Constraint("Equal", 9, 11))
sketch3.addConstraint(Sketcher.Constraint("Equal", 11, 13))
sketch3.addConstraint(Sketcher.Constraint("Equal", 6, 14))
sketch3.addConstraint(Sketcher.Constraint("Equal", 13, 15))
sketch3.addConstraint(Sketcher.Constraint("Equal", 15, 17))
sketch3.addConstraint(Sketcher.Constraint("Equal", 10, 18))
sketch3.addConstraint(Sketcher.Constraint("Equal", 17, 19))
sketch3.addConstraint(Sketcher.Constraint("Equal", 19, 21))
sketch3.addConstraint(Sketcher.Constraint("Equal", 14, 22))
sketch3.addConstraint(Sketcher.Constraint("Equal", 21, 23))
sketch3.addConstraint(Sketcher.Constraint("Equal", 23, 25))
sketch3.addConstraint(Sketcher.Constraint("Equal", 18, 26))
sketch3.addConstraint(Sketcher.Constraint("Equal", 25, 27))
sketch3.addConstraint(Sketcher.Constraint("Equal", 27, 29))
sketch3.addConstraint(Sketcher.Constraint("Equal", 22, 30))
sketch3.addConstraint(Sketcher.Constraint("Equal", 29, 31))
sketch3.addConstraint(Sketcher.Constraint("Horizontal", 3, 3, 9, 3))
sketch3.addConstraint(Sketcher.Constraint("Horizontal", 7, 3, 11, 3))
sketch3.addConstraint(Sketcher.Constraint("Horizontal", 19, 3, 25, 3))
sketch3.addConstraint(Sketcher.Constraint("Horizontal", 23, 3, 27, 3))
sketch3.addConstraint(Sketcher.Constraint("Vertical", 11, 3, 17, 3))
sketch3.addConstraint(Sketcher.Constraint("Vertical", 15, 3, 19, 3))
sketch3.addConstraint(Sketcher.Constraint("Equal", 28, 4))
sketch3.addConstraint(Sketcher.Constraint("Radius", 1, Q("2.000001 mm")))
sketch3.addConstraint(Sketcher.Constraint("DistanceY", -1, 1, 1, 3, Q("4.000001 mm")))
sketch3.addConstraint(Sketcher.Constraint("Radius", 2, Q("10.999994 mm")))
sketch3.addConstraint(Sketcher.Constraint("Radius", 6, Q("24.299997 mm")))
pocket1 = body.newObject("PartDesign::Pocket", "Pocket")
pocket1.Profile = sketch3
pocket1.Length = 7
pocket1.Reversed = True

sketch4 = body.newObject("Sketcher::SketchObject", "Sketch003")
sketch4.AttachmentSupport = (doc.getObject("XZ_Plane"), [""])
sketch4.MapMode = "FlatFace"
sketch4.AttachmentOffset = App.Placement(App.Vector(0, 0, 11.555443), App.Rotation())
sketch4.addGeometry(Part.Circle(App.Vector(-30, 0, 0), App.Vector(0, 0, 1), 2.1), False)
sketch4.addGeometry(Part.Circle(App.Vector(0, 30, 0), App.Vector(0, 0, 1), 2.1), False)
sketch4.addGeometry(Part.Circle(App.Vector(30, 0, 0), App.Vector(0, 0, 1), 2.1), False)
sketch4.addGeometry(Part.Circle(App.Vector(0, -30, 0), App.Vector(0, 0, 1), 2.1), False)
sketch4.addConstraint(Sketcher.Constraint("Equal", 0, 1))
sketch4.addConstraint(Sketcher.Constraint("Equal", 1, 2))
sketch4.addConstraint(Sketcher.Constraint("Equal", 2, 3))
sketch4.addConstraint(Sketcher.Constraint("Symmetric", 0, 3, 2, 3, -1, 1))
sketch4.addConstraint(Sketcher.Constraint("Symmetric", 1, 3, 3, 3, -1, 1))
sketch4.addConstraint(Sketcher.Constraint("PointOnObject", 0, 3, -1))
sketch4.addConstraint(Sketcher.Constraint("PointOnObject", 1, 3, -2))
sketch4.addConstraint(Sketcher.Constraint("Diameter", 0, Q("4.3 mm")))
sketch4.addConstraint(Sketcher.Constraint("DistanceX", 0, 3, -1, 1, Q("30 mm")))
sketch4.addConstraint(Sketcher.Constraint("DistanceY", -1, 1, 1, 3, Q("30 mm")))
pocket2 = body.newObject("PartDesign::Pocket", "Pocket001")
pocket2.Profile = sketch4
pocket2.Length = 7

sketch5 = body.newObject("Sketcher::SketchObject", "Sketch004")
sketch5.AttachmentSupport = (doc.getObject("XZ_Plane"), [""])
sketch5.MapMode = "FlatFace"
sketch5.AttachmentOffset = App.Placement(App.Vector(0, 0, 4.555443), App.Rotation())
sketch5.addGeometry(Part.Circle(App.Vector(0, 0, 0), App.Vector(0, 0, 1), 24), False)
sketch5.addGeometry(Part.Circle(App.Vector(0, 0, 0), App.Vector(0, 0, 1), 23), False)
sketch5.addConstraint(Sketcher.Constraint("Coincident", 0, 3, -1, 1))
sketch5.addConstraint(Sketcher.Constraint("Coincident", 1, 3, -1, 1))
sketch5.addConstraint(Sketcher.Constraint("Diameter", 0, Q("48.6 mm")))
sketch5.addConstraint(Sketcher.Constraint("Diameter", 1, Q("46.6 mm")))
pad2 = body.newObject("PartDesign::Pad", "Pad001")
pad2.Profile = sketch5
pad2.Length = 7

sketch6 = body.newObject("Sketcher::SketchObject", "Sketch005")
sketch6.AttachmentSupport = (doc.getObject("XZ_Plane"), [""])
sketch6.MapMode = "FlatFace"
sketch6.AttachmentOffset = App.Placement(App.Vector(0, 0, 4.555443), App.Rotation())
sketch6.addGeometry(Part.Circle(App.Vector(0, 0, 0), App.Vector(0, 0, 1), 23), False)
sketch6.addConstraint(Sketcher.Constraint("Coincident", 0, 3, -1, 1))
sketch6.addConstraint(Sketcher.Constraint("Diameter", 0, Q("46.6 mm")))
pocket3 = body.newObject("PartDesign::Pocket", "Pocket002")
pocket3.Profile = sketch6
pocket3.Type = "ThroughAll"
pocket3.Reversed = True

doc.recompute()
